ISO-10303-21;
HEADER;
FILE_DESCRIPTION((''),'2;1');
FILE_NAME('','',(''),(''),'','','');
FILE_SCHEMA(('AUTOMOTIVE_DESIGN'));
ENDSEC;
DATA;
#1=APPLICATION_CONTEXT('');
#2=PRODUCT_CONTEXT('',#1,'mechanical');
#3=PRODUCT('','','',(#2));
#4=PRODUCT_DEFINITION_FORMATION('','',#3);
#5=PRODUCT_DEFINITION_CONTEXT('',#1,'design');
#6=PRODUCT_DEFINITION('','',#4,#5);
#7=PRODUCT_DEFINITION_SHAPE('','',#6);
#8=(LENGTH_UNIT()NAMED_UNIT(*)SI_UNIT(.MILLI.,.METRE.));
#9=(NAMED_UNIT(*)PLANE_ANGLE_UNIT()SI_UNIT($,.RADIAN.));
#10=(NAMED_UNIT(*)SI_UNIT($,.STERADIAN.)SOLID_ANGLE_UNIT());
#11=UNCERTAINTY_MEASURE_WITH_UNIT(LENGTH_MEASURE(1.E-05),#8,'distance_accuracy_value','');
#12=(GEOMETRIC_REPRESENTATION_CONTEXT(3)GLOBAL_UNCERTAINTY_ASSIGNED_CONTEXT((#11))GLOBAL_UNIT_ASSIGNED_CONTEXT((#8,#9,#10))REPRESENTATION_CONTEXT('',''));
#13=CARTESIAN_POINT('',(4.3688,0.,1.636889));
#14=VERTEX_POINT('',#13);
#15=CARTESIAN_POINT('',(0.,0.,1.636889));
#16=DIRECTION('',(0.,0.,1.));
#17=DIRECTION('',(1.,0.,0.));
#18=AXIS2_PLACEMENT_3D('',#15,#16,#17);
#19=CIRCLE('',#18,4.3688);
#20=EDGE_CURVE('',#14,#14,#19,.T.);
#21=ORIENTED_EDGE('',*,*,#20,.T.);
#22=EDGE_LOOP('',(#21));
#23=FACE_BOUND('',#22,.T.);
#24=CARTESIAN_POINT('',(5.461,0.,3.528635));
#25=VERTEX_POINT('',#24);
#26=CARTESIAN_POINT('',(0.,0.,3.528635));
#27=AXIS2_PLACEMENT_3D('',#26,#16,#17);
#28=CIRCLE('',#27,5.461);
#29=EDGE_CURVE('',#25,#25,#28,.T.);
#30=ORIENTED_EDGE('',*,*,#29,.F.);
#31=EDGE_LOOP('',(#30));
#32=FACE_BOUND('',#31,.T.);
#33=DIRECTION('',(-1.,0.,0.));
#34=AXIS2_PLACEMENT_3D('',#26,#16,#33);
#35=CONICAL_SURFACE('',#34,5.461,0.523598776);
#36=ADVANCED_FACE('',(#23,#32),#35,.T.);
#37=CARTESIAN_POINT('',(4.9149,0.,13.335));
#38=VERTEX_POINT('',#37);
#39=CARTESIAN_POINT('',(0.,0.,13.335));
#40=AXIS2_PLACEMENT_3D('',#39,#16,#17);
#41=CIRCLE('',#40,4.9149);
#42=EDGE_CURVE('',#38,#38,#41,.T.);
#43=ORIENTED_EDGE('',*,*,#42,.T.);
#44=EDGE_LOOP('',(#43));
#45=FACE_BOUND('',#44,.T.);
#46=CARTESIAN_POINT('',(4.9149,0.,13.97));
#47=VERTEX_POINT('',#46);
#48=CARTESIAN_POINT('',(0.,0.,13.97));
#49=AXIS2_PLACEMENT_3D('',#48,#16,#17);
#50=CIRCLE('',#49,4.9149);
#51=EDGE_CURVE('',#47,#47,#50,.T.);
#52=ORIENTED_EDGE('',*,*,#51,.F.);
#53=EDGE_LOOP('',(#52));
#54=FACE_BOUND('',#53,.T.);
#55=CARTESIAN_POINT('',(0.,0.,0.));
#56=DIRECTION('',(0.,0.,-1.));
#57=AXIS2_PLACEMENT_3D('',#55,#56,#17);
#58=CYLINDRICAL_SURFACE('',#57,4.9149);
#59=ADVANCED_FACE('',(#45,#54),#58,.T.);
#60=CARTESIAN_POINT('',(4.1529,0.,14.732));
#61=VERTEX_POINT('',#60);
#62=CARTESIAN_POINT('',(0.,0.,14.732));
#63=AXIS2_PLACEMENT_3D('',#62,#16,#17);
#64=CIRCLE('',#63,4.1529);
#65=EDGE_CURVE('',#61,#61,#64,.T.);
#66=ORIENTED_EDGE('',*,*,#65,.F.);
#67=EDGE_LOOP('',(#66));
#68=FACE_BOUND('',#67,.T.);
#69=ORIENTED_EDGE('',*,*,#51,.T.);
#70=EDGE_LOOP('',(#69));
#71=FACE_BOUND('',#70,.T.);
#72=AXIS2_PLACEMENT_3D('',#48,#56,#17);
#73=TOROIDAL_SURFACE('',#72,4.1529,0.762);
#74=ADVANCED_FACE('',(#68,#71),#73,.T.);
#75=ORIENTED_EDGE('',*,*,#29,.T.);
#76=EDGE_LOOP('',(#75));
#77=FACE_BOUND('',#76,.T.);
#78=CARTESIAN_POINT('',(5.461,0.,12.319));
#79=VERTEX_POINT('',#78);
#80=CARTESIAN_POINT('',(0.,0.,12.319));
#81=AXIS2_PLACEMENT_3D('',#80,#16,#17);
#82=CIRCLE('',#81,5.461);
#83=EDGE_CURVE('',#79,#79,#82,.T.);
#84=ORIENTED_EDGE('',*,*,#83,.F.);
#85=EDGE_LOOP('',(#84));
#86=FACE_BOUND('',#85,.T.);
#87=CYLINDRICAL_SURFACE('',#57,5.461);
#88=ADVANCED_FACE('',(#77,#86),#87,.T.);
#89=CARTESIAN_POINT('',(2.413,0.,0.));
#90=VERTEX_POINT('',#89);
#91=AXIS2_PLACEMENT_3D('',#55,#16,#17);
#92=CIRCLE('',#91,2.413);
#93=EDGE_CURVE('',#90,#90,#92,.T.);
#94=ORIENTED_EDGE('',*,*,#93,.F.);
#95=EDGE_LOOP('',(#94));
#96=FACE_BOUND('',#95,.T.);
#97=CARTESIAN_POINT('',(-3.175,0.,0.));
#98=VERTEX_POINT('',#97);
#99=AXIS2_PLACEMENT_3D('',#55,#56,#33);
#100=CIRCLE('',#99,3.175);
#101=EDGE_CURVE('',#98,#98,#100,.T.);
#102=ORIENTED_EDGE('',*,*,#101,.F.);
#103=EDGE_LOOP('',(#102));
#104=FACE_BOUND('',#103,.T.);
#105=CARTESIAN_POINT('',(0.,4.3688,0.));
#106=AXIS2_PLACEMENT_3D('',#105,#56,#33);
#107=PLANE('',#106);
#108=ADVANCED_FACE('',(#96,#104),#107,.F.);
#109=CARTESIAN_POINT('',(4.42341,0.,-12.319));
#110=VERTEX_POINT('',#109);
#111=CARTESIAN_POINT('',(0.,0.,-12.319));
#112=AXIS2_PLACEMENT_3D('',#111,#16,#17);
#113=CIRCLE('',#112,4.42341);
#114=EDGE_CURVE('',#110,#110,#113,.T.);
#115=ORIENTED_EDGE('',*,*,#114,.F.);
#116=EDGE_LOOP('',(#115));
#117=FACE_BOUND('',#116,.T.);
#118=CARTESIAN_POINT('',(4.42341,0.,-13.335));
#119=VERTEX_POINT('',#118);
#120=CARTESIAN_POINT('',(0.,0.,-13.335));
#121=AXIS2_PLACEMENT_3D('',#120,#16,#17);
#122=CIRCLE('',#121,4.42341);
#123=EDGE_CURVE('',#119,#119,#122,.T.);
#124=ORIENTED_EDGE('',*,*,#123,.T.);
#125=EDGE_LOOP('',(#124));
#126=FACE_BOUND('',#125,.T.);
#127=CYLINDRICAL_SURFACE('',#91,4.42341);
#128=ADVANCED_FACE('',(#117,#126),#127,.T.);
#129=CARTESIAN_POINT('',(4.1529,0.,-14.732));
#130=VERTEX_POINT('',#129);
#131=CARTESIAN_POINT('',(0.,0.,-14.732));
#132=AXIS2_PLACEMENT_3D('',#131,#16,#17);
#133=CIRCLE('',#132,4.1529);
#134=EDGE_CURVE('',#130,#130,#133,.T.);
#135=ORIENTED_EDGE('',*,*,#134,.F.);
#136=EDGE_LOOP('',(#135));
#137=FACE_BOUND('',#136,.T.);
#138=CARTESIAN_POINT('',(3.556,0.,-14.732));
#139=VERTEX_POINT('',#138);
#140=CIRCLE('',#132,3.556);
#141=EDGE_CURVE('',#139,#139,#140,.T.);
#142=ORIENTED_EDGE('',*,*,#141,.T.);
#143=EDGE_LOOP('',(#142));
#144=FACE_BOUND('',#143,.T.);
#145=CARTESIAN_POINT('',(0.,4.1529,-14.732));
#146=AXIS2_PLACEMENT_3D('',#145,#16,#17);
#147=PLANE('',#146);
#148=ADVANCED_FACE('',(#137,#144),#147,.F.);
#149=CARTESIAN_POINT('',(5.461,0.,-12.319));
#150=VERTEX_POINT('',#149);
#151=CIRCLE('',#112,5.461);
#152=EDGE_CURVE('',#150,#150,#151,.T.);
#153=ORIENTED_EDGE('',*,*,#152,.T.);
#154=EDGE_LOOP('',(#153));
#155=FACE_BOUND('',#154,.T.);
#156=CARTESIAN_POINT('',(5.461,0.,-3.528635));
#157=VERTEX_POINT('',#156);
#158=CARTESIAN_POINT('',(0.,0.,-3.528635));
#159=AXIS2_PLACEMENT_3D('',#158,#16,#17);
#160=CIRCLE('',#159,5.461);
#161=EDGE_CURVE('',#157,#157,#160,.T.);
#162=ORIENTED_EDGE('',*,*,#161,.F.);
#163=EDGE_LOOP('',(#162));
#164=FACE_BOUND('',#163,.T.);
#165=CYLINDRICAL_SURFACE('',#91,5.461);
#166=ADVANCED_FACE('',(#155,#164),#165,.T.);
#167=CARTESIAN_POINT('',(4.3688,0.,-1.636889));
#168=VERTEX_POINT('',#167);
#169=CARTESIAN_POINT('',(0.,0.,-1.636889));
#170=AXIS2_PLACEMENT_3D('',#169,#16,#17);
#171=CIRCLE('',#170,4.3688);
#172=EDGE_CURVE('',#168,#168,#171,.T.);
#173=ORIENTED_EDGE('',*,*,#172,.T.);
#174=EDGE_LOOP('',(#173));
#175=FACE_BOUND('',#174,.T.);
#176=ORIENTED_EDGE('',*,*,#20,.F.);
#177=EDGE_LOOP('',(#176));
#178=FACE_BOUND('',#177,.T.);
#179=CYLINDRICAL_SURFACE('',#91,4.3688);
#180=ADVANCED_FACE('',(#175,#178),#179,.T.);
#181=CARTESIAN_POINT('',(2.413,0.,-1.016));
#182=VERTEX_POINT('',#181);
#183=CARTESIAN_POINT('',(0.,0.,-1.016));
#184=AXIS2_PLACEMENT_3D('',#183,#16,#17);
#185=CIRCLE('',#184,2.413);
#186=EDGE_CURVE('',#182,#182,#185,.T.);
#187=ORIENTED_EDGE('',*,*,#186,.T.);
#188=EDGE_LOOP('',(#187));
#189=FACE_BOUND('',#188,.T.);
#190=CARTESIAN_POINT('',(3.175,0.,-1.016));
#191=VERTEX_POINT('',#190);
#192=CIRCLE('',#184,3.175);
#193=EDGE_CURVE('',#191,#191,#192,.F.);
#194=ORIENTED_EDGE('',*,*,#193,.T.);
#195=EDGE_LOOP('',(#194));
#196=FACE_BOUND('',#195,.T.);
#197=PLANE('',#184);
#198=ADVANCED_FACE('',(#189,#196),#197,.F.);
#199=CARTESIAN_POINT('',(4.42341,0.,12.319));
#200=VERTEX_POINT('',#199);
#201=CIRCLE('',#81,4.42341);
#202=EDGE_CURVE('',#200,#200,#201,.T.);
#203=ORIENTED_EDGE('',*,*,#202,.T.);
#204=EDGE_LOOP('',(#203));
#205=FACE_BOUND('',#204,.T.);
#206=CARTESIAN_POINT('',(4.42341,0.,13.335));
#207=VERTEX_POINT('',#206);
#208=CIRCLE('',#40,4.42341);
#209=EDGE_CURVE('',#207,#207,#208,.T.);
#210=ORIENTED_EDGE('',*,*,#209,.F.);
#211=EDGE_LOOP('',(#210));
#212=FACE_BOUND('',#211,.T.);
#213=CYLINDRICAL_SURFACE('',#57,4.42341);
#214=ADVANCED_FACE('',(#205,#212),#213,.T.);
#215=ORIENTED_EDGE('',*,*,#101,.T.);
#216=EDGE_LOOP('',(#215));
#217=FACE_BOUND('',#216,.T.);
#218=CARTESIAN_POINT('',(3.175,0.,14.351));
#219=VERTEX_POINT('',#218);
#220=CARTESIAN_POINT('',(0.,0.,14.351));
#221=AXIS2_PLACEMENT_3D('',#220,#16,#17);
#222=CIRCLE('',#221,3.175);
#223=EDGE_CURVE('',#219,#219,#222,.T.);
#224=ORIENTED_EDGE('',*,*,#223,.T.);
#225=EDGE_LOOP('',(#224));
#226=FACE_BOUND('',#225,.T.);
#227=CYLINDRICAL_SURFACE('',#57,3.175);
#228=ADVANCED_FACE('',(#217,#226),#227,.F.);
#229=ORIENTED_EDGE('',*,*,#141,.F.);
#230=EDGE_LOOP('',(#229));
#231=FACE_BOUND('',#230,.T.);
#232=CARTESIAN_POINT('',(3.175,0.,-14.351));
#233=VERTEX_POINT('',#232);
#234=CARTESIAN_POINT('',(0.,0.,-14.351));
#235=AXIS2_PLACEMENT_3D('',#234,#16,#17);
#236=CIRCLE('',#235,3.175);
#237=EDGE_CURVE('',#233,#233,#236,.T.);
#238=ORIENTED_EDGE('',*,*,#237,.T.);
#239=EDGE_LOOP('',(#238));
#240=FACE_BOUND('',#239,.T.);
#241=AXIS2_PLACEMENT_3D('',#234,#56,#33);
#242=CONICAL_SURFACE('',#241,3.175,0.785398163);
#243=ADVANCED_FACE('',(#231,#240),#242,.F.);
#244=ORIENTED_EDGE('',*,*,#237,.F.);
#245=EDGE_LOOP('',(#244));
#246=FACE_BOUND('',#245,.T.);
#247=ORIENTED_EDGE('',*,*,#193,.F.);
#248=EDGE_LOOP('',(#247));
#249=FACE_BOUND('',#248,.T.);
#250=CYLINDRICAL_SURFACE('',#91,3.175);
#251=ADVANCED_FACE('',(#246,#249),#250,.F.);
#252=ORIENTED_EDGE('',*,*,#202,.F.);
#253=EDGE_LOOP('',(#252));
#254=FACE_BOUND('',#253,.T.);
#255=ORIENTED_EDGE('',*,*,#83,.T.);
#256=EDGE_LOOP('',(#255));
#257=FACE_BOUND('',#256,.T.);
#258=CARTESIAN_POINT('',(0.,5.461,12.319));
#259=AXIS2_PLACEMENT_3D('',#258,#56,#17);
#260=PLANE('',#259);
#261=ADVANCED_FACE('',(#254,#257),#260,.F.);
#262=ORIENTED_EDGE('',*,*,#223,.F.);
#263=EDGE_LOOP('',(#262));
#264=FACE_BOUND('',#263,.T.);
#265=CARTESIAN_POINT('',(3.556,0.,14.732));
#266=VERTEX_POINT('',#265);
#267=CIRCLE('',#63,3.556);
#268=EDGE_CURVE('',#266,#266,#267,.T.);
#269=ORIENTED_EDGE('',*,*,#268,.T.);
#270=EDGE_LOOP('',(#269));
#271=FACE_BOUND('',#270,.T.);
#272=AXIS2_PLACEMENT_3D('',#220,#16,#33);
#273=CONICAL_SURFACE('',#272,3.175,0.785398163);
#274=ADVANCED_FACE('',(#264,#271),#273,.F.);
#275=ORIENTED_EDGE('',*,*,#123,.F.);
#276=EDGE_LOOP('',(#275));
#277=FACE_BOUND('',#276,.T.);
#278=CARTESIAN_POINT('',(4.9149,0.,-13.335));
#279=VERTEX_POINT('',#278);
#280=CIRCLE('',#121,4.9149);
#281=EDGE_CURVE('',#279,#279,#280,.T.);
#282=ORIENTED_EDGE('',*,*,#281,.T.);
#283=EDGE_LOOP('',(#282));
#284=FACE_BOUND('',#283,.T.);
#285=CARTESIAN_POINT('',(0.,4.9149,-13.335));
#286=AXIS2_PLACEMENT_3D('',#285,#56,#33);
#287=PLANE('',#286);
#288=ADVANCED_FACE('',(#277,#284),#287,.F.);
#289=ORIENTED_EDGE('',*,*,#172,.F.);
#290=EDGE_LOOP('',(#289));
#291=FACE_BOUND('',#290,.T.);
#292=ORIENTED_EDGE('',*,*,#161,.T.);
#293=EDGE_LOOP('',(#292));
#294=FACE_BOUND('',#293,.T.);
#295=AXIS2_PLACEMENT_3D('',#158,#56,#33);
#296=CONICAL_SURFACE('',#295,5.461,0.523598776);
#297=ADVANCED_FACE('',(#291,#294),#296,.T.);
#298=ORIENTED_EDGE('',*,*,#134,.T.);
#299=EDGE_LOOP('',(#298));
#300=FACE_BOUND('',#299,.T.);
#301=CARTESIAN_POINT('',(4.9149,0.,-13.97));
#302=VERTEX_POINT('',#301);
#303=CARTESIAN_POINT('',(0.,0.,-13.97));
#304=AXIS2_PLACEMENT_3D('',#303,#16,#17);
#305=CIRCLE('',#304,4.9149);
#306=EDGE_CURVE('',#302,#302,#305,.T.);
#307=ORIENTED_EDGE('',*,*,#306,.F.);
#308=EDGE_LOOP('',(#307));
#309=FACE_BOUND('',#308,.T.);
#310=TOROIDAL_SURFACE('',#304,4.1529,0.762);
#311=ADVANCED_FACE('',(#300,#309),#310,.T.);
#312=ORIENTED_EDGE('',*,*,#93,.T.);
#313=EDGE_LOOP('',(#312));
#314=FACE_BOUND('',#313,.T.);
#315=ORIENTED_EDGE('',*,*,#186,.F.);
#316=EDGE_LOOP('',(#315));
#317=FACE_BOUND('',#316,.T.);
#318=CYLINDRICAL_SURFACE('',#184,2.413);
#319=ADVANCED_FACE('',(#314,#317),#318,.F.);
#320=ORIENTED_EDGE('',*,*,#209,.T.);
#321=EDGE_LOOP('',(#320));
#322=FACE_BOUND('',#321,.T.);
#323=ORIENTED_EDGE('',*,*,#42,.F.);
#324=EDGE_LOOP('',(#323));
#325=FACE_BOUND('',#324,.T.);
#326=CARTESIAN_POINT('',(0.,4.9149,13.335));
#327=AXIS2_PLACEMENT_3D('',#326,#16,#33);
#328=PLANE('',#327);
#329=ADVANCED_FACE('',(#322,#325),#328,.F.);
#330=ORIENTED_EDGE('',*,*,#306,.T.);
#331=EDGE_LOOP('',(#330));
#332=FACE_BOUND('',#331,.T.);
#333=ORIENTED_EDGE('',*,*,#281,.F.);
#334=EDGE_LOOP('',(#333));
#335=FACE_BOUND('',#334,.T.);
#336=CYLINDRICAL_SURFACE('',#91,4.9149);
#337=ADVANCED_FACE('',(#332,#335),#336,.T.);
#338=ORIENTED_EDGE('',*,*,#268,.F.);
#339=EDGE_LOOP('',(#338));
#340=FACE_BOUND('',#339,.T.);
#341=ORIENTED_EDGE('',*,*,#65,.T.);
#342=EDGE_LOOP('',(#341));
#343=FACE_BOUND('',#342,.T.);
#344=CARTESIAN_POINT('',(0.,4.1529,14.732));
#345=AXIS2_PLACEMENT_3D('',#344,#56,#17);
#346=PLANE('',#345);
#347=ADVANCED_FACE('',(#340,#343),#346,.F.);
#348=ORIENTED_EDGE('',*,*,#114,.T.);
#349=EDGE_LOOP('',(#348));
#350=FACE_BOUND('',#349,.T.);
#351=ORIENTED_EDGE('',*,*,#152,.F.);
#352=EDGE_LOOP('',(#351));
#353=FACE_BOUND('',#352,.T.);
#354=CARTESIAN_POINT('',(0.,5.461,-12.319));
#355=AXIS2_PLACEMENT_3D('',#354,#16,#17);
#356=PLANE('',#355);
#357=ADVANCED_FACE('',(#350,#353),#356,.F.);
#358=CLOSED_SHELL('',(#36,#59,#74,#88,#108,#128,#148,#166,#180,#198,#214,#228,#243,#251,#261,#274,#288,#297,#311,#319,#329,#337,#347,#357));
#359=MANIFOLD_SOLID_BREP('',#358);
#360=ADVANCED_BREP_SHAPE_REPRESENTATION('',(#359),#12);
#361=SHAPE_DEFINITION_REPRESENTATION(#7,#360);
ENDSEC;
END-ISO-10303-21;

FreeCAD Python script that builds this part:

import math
import FreeCAD as App
import Part
import Sketcher

V = App.Vector
Q = App.Units.Quantity

doc = App.newDocument("Part")
body = doc.addObject("PartDesign::Body", "Body")

# Sketch on YZ plane
sketch1 = body.newObject("Sketcher::SketchObject", "Sketch")
sketch1.AttachmentSupport = (doc.getObject("YZ_Plane"), [""])
sketch1.MapMode = "FlatFace"
sketch1.addGeometry([
    Part.LineSegment(V(4.9149, -13.97, 0), V(4.9149, -13.335, 0)),  # 0
    Part.LineSegment(V(4.9149, -13.335, 0), V(4.42341, -13.335, 0)),  # 1
    Part.LineSegment(V(4.42341, -13.335, 0), V(4.42341, -12.319, 0)),  # 2
    Part.LineSegment(V(4.42341, -12.319, 0), V(5.461, -12.319, 0)),  # 3
    Part.LineSegment(V(5.461, -12.319, 0), V(5.461, -3.528635, 0)),  # 4
    Part.LineSegment(V(5.461, -3.528635, 0), V(4.3688, -1.636889, 0)),  # 5
    Part.LineSegment(V(4.3688, -1.636889, 0), V(4.3688, 0, 0)),  # 6
    Part.LineSegment(V(4.3688, 0, 0), V(3.175, 0, 0)),  # 7
    Part.LineSegment(V(3.175, 0, 0), V(3.175, -14.351, 0)),  # 8
    Part.LineSegment(V(3.175, -14.351, 0), V(3.556, -14.732, 0)),  # 9
    Part.LineSegment(V(3.556, -14.732, 0), V(4.1529, -14.732, 0)),  # 10
    Part.ArcOfCircle(Part.Circle(V(4.1529, -13.97, 0), V(0, 0, 1), 0.762), math.radians(-90), math.radians(0)),  # 11
], False)
sketch1.addConstraint([
    Sketcher.Constraint("Coincident", 0, 2, 1, 1),
    Sketcher.Constraint("Coincident", 1, 2, 2, 1),
    Sketcher.Constraint("Coincident", 2, 2, 3, 1),
    Sketcher.Constraint("Coincident", 3, 2, 4, 1),
    Sketcher.Constraint("Coincident", 4, 2, 5, 1),
    Sketcher.Constraint("Coincident", 5, 2, 6, 1),
    Sketcher.Constraint("Coincident", 6, 2, 7, 1),
    Sketcher.Constraint("Coincident", 7, 2, 8, 1),
    Sketcher.Constraint("Coincident", 8, 2, 9, 1),
    Sketcher.Constraint("Coincident", 9, 2, 10, 1),
    Sketcher.Constraint("Tangent", 10, 2, 11, 1),
    Sketcher.Constraint("Tangent", 11, 2, 0, 1),
    Sketcher.Constraint("Vertical", 0),
    Sketcher.Constraint("Horizontal", 1),
    Sketcher.Constraint("Vertical", 2),
    Sketcher.Constraint("Horizontal", 3),
    Sketcher.Constraint("Vertical", 4),
    Sketcher.Constraint("Vertical", 6),
    Sketcher.Constraint("Horizontal", 7),
    Sketcher.Constraint("Vertical", 8),
    Sketcher.Constraint("Horizontal", 10),
    Sketcher.Constraint("PointOnObject", 6, 2, -1),
    Sketcher.Constraint("Radius", 11, Q("0.03 in")),
    Sketcher.Constraint("Angle", 5, Q("120 deg")),
    Sketcher.Constraint("Angle", 9, Q("-45 deg")),
    Sketcher.Constraint("DistanceY", 2, 1, 2, 2, Q("0.04 in")),
    Sketcher.Constraint("DistanceX", 7, 2, 7, 1, Q("0.047 in")),
    Sketcher.Constraint("DistanceY", 0, 1, 0, 2, Q("0.025 in")),
    Sketcher.Constraint("DistanceY", 8, 2, 8, 1, Q("0.565 in")),
    Sketcher.Constraint("DistanceY", 11, 3, -1, 1, Q("0.55 in")),
    Sketcher.Constraint("DistanceX", -1, 1, 9, 2, Q("0.14 in")),
    Sketcher.Constraint("DistanceX", 7, 2, 4, 2, Q("0.09 in")),
    Sketcher.Constraint("DistanceX", 10, 1, 10, 2, Q("0.0235 in")),
    Sketcher.Constraint("DistanceX", 1, 2, 1, 1, Q("0.49149 mm")),
    Sketcher.Constraint("DistanceY", 6, 1, 6, 2, Q("1.636889 mm")),
])
revolution = body.newObject("PartDesign::Revolution", "Revolution")
revolution.Profile = sketch1
revolution.ReferenceAxis = (sketch1, ["V_Axis"])
revolution.Angle = 360

# Sketch on XY plane
sketch2 = body.newObject("Sketcher::SketchObject", "Sketch001")
sketch2.AttachmentSupport = (doc.getObject("XY_Plane"), [""])
sketch2.MapMode = "FlatFace"
sketch2.addGeometry([
    Part.Circle(V(0, 0, 0), V(0, 0, 1), 3.175),
    Part.Circle(V(0, 0, 0), V(0, 0, 1), 2.413),
], False)
sketch2.addConstraint([
    Sketcher.Constraint("Coincident", 0, 3, -1, 1),
    Sketcher.Constraint("Coincident", 1, 3, -1, 1),
    Sketcher.Constraint("Diameter", 0, Q("0.25 in")),
    Sketcher.Constraint("Diameter", 1, Q("0.19 in")),
])
pad1 = body.newObject("PartDesign::Pad", "Pad")
pad1.Profile = sketch2
pad1.Length = Q("0.04 in")
pad1.Reversed = True
doc.recompute()

mirrored = body.newObject("PartDesign::Mirrored", "Mirrored")
mirrored.Originals = [revolution]
mirrored.MirrorPlane = (doc.getObject("XY_Plane"), [""])
body.Tip = mirrored

doc.recompute()
